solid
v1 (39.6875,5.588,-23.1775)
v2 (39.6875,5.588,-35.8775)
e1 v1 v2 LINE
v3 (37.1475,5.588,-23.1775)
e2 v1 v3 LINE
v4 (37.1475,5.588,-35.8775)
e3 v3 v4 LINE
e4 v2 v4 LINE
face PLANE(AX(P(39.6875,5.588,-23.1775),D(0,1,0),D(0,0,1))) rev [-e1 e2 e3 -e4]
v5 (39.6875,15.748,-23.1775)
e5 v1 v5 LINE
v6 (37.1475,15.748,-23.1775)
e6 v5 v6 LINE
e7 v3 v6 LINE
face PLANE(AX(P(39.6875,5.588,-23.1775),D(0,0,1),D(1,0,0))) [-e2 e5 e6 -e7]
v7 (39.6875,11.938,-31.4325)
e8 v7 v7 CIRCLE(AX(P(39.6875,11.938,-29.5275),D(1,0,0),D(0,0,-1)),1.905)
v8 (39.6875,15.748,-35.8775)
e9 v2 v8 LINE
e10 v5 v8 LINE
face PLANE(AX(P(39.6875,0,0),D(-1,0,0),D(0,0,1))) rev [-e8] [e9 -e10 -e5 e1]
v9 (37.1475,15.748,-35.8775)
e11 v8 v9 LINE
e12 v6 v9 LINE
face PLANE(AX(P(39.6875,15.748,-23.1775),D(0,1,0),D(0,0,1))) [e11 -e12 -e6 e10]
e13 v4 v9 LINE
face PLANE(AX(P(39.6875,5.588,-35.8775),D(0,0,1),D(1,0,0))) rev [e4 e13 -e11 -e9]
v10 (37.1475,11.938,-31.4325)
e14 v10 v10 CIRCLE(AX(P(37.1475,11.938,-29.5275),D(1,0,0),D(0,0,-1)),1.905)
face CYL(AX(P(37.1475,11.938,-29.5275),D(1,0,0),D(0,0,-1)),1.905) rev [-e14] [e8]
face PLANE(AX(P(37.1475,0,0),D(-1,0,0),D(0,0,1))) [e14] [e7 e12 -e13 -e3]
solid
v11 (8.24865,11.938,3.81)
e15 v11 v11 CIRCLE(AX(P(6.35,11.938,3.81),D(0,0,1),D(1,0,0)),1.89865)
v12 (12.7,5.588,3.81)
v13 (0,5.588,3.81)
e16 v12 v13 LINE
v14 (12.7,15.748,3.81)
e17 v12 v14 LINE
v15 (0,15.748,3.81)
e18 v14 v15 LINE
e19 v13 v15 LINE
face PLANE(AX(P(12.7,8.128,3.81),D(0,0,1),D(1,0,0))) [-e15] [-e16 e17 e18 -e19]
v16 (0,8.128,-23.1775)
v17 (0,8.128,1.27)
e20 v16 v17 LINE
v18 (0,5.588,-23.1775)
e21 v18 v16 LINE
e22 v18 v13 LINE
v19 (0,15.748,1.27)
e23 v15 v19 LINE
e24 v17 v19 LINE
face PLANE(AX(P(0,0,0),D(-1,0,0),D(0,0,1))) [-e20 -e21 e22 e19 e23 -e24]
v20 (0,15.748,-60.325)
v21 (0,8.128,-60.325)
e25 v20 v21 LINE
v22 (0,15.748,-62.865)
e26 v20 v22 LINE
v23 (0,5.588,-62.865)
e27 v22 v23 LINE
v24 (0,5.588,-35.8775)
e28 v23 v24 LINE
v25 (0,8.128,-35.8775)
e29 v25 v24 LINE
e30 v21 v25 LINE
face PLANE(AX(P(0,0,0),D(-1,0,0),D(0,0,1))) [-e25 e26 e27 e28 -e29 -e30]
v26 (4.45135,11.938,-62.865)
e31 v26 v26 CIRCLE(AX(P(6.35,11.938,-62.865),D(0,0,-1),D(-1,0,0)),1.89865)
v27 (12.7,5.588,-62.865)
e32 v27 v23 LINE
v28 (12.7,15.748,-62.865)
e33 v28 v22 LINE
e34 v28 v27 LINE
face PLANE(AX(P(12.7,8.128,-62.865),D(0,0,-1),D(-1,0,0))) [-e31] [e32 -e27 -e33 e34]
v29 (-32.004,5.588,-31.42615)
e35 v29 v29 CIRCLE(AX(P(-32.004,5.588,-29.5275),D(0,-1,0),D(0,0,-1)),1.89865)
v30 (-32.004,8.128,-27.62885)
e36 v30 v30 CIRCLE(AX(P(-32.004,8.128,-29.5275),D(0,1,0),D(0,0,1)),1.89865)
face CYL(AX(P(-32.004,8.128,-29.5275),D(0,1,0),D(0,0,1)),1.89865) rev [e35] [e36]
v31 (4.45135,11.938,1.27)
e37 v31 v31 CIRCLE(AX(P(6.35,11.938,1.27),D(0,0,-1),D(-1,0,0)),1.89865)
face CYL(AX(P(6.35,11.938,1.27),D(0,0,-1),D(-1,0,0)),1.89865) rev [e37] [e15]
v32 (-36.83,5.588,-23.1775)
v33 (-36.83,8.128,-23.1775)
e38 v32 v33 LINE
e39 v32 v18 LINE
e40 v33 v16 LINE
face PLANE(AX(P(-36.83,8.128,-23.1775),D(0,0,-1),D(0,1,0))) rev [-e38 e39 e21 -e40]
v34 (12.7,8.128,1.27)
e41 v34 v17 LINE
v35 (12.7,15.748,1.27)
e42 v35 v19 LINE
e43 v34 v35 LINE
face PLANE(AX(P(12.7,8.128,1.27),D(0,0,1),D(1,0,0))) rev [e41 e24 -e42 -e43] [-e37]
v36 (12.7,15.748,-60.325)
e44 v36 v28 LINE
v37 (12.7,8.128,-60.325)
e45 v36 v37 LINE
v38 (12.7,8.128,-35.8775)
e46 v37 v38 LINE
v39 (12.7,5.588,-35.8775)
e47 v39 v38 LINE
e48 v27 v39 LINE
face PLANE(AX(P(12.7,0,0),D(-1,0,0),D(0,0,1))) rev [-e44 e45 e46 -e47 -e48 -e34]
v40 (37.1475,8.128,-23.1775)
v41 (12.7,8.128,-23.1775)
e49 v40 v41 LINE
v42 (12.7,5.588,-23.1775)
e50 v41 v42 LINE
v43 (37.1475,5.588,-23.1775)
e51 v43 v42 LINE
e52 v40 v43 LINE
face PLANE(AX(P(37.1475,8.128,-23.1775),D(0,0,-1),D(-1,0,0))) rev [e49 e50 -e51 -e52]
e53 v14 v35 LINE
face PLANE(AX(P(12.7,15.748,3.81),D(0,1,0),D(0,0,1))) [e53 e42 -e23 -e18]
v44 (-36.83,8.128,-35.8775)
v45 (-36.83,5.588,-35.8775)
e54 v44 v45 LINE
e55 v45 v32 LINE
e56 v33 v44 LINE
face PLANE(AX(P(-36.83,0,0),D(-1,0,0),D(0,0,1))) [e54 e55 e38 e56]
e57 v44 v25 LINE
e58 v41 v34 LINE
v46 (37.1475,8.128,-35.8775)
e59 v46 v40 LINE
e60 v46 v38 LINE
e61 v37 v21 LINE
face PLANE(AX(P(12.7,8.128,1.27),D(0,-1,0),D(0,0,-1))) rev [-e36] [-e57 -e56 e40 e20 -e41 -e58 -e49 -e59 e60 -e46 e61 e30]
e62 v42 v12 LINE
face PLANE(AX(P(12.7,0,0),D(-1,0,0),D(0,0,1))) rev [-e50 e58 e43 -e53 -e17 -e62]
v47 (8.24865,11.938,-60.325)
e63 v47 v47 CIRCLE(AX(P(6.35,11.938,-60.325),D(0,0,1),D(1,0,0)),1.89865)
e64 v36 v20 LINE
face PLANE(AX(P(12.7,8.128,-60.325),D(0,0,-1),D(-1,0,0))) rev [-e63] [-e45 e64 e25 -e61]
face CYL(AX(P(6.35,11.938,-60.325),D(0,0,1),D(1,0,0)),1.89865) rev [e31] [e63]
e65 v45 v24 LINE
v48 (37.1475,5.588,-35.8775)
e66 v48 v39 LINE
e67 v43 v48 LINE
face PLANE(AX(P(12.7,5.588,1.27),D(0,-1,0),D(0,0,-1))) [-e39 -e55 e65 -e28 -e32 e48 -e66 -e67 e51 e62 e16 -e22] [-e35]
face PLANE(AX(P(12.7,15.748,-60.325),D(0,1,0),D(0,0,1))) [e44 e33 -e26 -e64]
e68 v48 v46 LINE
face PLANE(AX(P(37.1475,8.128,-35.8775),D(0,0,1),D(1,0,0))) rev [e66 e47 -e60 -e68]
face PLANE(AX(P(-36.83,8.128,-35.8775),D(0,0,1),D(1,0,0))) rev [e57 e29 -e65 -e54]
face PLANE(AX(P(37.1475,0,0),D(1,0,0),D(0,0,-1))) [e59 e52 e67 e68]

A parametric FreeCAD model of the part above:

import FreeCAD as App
import Part
import Sketcher

V = App.Vector
Q = App.Units.Quantity

doc = App.newDocument("Part")
params = doc.addObject("Spreadsheet::Sheet", "Params")
for row, (alias, value) in enumerate([
    ("sketch1_width", "0.3 in"),
    ("sketch1_width2", "0.4 in"),
    ("sketch1_height", "0.1 in"),
    ("sketch1_height2", "2.625 in"),
    ("pad1_length", "0.5 in"),
    ("hole_diameter", "0.1495 in"),
    ("hole_depth", "0.3 in"),
    ("hole2_diameter", "0.1495 in"),
    ("hole2_depth", "0.3 in"),
    ("sketch4_width", "0.1 in"),
    ("sketch4_height", "0.5 in"),
    ("pad2_length", "0.9625 in"),
    ("sketch5_width", "0.1 in"),
    ("sketch5_height", "0.5 in"),
    ("pad3_length", "1.45 in"),
    ("groove_angle", "360 deg"),
    ("sketch7_width", "0.4 in"),
    ("sketch7_height", "0.5 in"),
    ("pad4_length", "0.1 in"),
    ("sketch8_diameter", "0.15 in"),
    ("pocket1_length", "0.1 in"),
], start=1):
    params.set(f"A{row}", alias)
    params.set(f"B{row}", "=" + value)
    params.setAlias(f"B{row}", alias)

body = doc.addObject("PartDesign::Body", "Body")

# Sketch on YZ plane
sketch1 = body.newObject("Sketcher::SketchObject", "Sketch")
sketch1.AttachmentSupport = (doc.getObject("YZ_Plane"), [""])
sketch1.MapMode = "FlatFace"
sketch1.addGeometry(Part.LineSegment(V(8.1, 1.3, 0), V(15.7, 1.3, 0)), False)
sketch1.addGeometry(Part.LineSegment(V(15.7, 1.3, 0), V(15.7, 3.8, 0)), False)
sketch1.addGeometry(Part.LineSegment(V(15.7, 3.8, 0), V(5.6, 3.8, 0)), False)
sketch1.addGeometry(Part.LineSegment(V(5.6, 3.8, 0), V(5.6, -62.9, 0)), False)
sketch1.addGeometry(Part.LineSegment(V(5.6, -62.9, 0), V(15.7, -62.9, 0)), False)
sketch1.addGeometry(Part.LineSegment(V(15.7, -62.9, 0), V(15.7, -60.3, 0)), False)
sketch1.addGeometry(Part.LineSegment(V(15.7, -60.3, 0), V(8.1, -60.3, 0)), False)
sketch1.addGeometry(Part.LineSegment(V(8.1, -60.3, 0), V(8.1, 1.3, 0)), False)
sketch1.addConstraint(Sketcher.Constraint("Coincident", 0, 2, 1, 1))
sketch1.addConstraint(Sketcher.Constraint("Coincident", 1, 2, 2, 1))
sketch1.addConstraint(Sketcher.Constraint("Coincident", 2, 2, 3, 1))
sketch1.addConstraint(Sketcher.Constraint("Coincident", 3, 2, 4, 1))
sketch1.addConstraint(Sketcher.Constraint("Coincident", 4, 2, 5, 1))
sketch1.addConstraint(Sketcher.Constraint("Coincident", 5, 2, 6, 1))
sketch1.addConstraint(Sketcher.Constraint("Coincident", 6, 2, 7, 1))
sketch1.addConstraint(Sketcher.Constraint("Coincident", 7, 2, 0, 1))
sketch1.addConstraint(Sketcher.Constraint("Horizontal", 0))
sketch1.addConstraint(Sketcher.Constraint("Vertical", 1))
sketch1.addConstraint(Sketcher.Constraint("Horizontal", 2))
sketch1.addConstraint(Sketcher.Constraint("Vertical", 3))
sketch1.addConstraint(Sketcher.Constraint("Horizontal", 4))
sketch1.addConstraint(Sketcher.Constraint("Vertical", 5))
sketch1.addConstraint(Sketcher.Constraint("Horizontal", 6))
sketch1.addConstraint(Sketcher.Constraint("Vertical", 7))
sketch1.addConstraint(Sketcher.Constraint("Vertical", 1, 2, 4, 2))
sketch1.addConstraint(Sketcher.Constraint("Equal", 1, 5))
sketch1.addConstraint(Sketcher.Constraint("DistanceX", 0, 1, 0, 2, Q("0.3 in")))
sketch1.addConstraint(Sketcher.Constraint("DistanceX", 2, 2, 2, 1, Q("0.4 in")))
sketch1.addConstraint(Sketcher.Constraint("DistanceY", 1, 1, 1, 2, Q("0.1 in")))
sketch1.addConstraint(Sketcher.Constraint("DistanceY", 3, 2, 3, 1, Q("2.625 in")))
sketch1.addConstraint(Sketcher.Constraint("DistanceX", -1, 1, 0, 2, Q("0.62 in")))
sketch1.addConstraint(Sketcher.Constraint("DistanceY", -1, 1, 0, 2, Q("0.05 in")))
sketch1.setExpression("Constraints[18]", "Params.sketch1_width")
sketch1.setExpression("Constraints[19]", "Params.sketch1_width2")
sketch1.setExpression("Constraints[20]", "Params.sketch1_height")
sketch1.setExpression("Constraints[21]", "Params.sketch1_height2")
pad1 = body.newObject("PartDesign::Pad", "Pad")
pad1.Profile = sketch1
pad1.setExpression("Length", "Params.pad1_length")

# Sketch on XY plane
sketch2 = body.newObject("Sketcher::SketchObject", "Sketch001")
sketch2.AttachmentSupport = (doc.getObject("XY_Plane"), [""])
sketch2.MapMode = "FlatFace"
sketch2.AttachmentOffset = App.Placement(V(0, 0, 0.05 * 25.4), App.Rotation())
sketch2.addGeometry(Part.Circle(V(6.3, 11.9, 0), V(0, 0, 1), 1.9), False)
sketch2.addConstraint(Sketcher.Constraint("Diameter", 0, Q("0.1495 in")))
sketch2.addConstraint(Sketcher.Constraint("DistanceX", -1, 1, 0, 3, Q("0.25 in")))
sketch2.addConstraint(Sketcher.Constraint("DistanceY", -1, 1, 0, 3, Q("0.47 in")))
doc.recompute()
hole = body.newObject("PartDesign::Hole", "Hole")
hole.Profile = sketch2
hole.ThreadType = "None"
hole.setExpression("Diameter", "Params.hole_diameter")
hole.DepthType = "Dimension"
hole.setExpression("Depth", "Params.hole_depth")
hole.DrillPoint = "Angled"
hole.DrillPointAngle = 118
hole.Reversed = True

# Sketch on XY plane
sketch3 = body.newObject("Sketcher::SketchObject", "Sketch002")
sketch3.AttachmentSupport = (doc.getObject("XY_Plane"), [""])
sketch3.MapMode = "FlatFace"
sketch3.AttachmentOffset = App.Placement(V(0, 0, -2.375 * 25.4), App.Rotation())
sketch3.addGeometry(Part.Circle(V(6.3, 11.9, 0), V(0, 0, 1), 1.9), False)
sketch3.addConstraint(Sketcher.Constraint("Diameter", 0, Q("0.1495 in")))
sketch3.addConstraint(Sketcher.Constraint("DistanceX", -1, 1, 0, 3, Q("0.25 in")))
sketch3.addConstraint(Sketcher.Constraint("DistanceY", -1, 1, 0, 3, Q("0.47 in")))
doc.recompute()
hole2 = body.newObject("PartDesign::Hole", "Hole001")
hole2.Profile = sketch3
hole2.ThreadType = "None"
hole2.setExpression("Diameter", "Params.hole2_diameter")
hole2.DepthType = "Dimension"
hole2.setExpression("Depth", "Params.hole2_depth")
hole2.DrillPoint = "Angled"
hole2.DrillPointAngle = 118

# Sketch on YZ plane
sketch4 = body.newObject("Sketcher::SketchObject", "Sketch003")
sketch4.AttachmentSupport = (doc.getObject("YZ_Plane"), [""])
sketch4.MapMode = "FlatFace"
sketch4.AttachmentOffset = App.Placement(V(0, 0, 0.5 * 25.4), App.Rotation())
sketch4.addGeometry(Part.LineSegment(V(8.1, -23.2, 0), V(5.6, -23.2, 0)), False)
sketch4.addGeometry(Part.LineSegment(V(5.6, -23.2, 0), V(5.6, -35.9, 0)), False)
sketch4.addGeometry(Part.LineSegment(V(5.6, -35.9, 0), V(8.1, -35.9, 0)), False)
sketch4.addGeometry(Part.LineSegment(V(8.1, -35.9, 0), V(8.1, -23.2, 0)), False)
sketch4.addConstraint(Sketcher.Constraint("Coincident", 0, 2, 1, 1))
sketch4.addConstraint(Sketcher.Constraint("Coincident", 1, 2, 2, 1))
sketch4.addConstraint(Sketcher.Constraint("Coincident", 2, 2, 3, 1))
sketch4.addConstraint(Sketcher.Constraint("Coincident", 3, 2, 0, 1))
sketch4.addConstraint(Sketcher.Constraint("Horizontal", 0))
sketch4.addConstraint(Sketcher.Constraint("Vertical", 1))
sketch4.addConstraint(Sketcher.Constraint("Horizontal", 2))
sketch4.addConstraint(Sketcher.Constraint("Vertical", 3))
sketch4.addConstraint(Sketcher.Constraint("DistanceX", 0, 2, 0, 1, Q("0.1 in")))
sketch4.addConstraint(Sketcher.Constraint("DistanceY", 1, 2, 1, 1, Q("0.5 in")))
sketch4.addConstraint(Sketcher.Constraint("DistanceX", -1, 1, 0, 2, Q("0.22 in")))
sketch4.addConstraint(Sketcher.Constraint("DistanceY", 0, 2, -1, 1, Q("0.9125 in")))
sketch4.setExpression("Constraints[8]", "Params.sketch4_width")
sketch4.setExpression("Constraints[9]", "Params.sketch4_height")
pad2 = body.newObject("PartDesign::Pad", "Pad001")
pad2.Profile = sketch4
pad2.setExpression("Length", "Params.pad2_length")

# Sketch on YZ plane
sketch5 = body.newObject("Sketcher::SketchObject", "Sketch004")
sketch5.AttachmentSupport = (doc.getObject("YZ_Plane"), [""])
sketch5.MapMode = "FlatFace"
sketch5.addGeometry(Part.LineSegment(V(8.1, -35.9, 0), V(5.6, -35.9, 0)), False)
sketch5.addGeometry(Part.LineSegment(V(5.6, -35.9, 0), V(5.6, -23.2, 0)), False)
sketch5.addGeometry(Part.LineSegment(V(5.6, -23.2, 0), V(8.1, -23.2, 0)), False)
sketch5.addGeometry(Part.LineSegment(V(8.1, -23.2, 0), V(8.1, -35.9, 0)), False)
sketch5.addConstraint(Sketcher.Constraint("Coincident", 0, 2, 1, 1))
sketch5.addConstraint(Sketcher.Constraint("Coincident", 1, 2, 2, 1))
sketch5.addConstraint(Sketcher.Constraint("Coincident", 2, 2, 3, 1))
sketch5.addConstraint(Sketcher.Constraint("Coincident", 3, 2, 0, 1))
sketch5.addConstraint(Sketcher.Constraint("Horizontal", 0))
sketch5.addConstraint(Sketcher.Constraint("Vertical", 1))
sketch5.addConstraint(Sketcher.Constraint("Horizontal", 2))
sketch5.addConstraint(Sketcher.Constraint("Vertical", 3))
sketch5.addConstraint(Sketcher.Constraint("DistanceX", 0, 2, 0, 1, Q("0.1 in")))
sketch5.addConstraint(Sketcher.Constraint("DistanceY", 1, 1, 1, 2, Q("0.5 in")))
sketch5.addConstraint(Sketcher.Constraint("DistanceX", -1, 1, 0, 2, Q("0.22 in")))
sketch5.addConstraint(Sketcher.Constraint("DistanceY", 0, 2, -1, 1, Q("1.4125 in")))
sketch5.setExpression("Constraints[8]", "Params.sketch5_width")
sketch5.setExpression("Constraints[9]", "Params.sketch5_height")
pad3 = body.newObject("PartDesign::Pad", "Pad002")
pad3.Profile = sketch5
pad3.setExpression("Length", "Params.pad3_length")
pad3.Reversed = True

# Sketch on YZ plane
sketch6 = body.newObject("Sketcher::SketchObject", "Sketch005")
sketch6.AttachmentSupport = (doc.getObject("YZ_Plane"), [""])
sketch6.MapMode = "FlatFace"
sketch6.AttachmentOffset = App.Placement(V(0, 0, -1.26 * 25.4), App.Rotation())
sketch6.addGeometry(Part.LineSegment(V(5.6, -29.5, 0), V(8.1, -29.5, 0)), False)
sketch6.addGeometry(Part.LineSegment(V(8.1, -29.5, 0), V(8.1, -27.6, 0)), False)
sketch6.addGeometry(Part.LineSegment(V(8.1, -27.6, 0), V(5.6, -27.6, 0)), False)
sketch6.addGeometry(Part.LineSegment(V(5.6, -27.6, 0), V(5.6, -29.5, 0)), False)
sketch6.addGeometry(Part.LineSegment(V(8.1, -29.5, 0), V(5.6, -29.5, 0)), True)  # axis
sketch6.addConstraint(Sketcher.Constraint("Coincident", 0, 2, 1, 1))
sketch6.addConstraint(Sketcher.Constraint("Coincident", 1, 2, 2, 1))
sketch6.addConstraint(Sketcher.Constraint("Coincident", 2, 2, 3, 1))
sketch6.addConstraint(Sketcher.Constraint("Coincident", 3, 2, 0, 1))
sketch6.addConstraint(Sketcher.Constraint("Horizontal", 0))
sketch6.addConstraint(Sketcher.Constraint("Vertical", 1))
sketch6.addConstraint(Sketcher.Constraint("Horizontal", 2))
sketch6.addConstraint(Sketcher.Constraint("Vertical", 3))
sketch6.addConstraint(Sketcher.Constraint("Horizontal", 4))
sketch6.addConstraint(Sketcher.Constraint("Coincident", 4, 1, 0, 2))
sketch6.addConstraint(Sketcher.Constraint("Vertical", 2, 2, 4, 2))
sketch6.addConstraint(Sketcher.Constraint("DistanceX", -1, 1, 0, 2, Q("0.32 in")))
sketch6.addConstraint(Sketcher.Constraint("DistanceY", 0, 2, -1, 1, Q("1.1625 in")))
sketch6.addConstraint(Sketcher.Constraint("DistanceX", 0, 1, 0, 2, 2.54105))
sketch6.addConstraint(Sketcher.Constraint("DistanceY", 1, 1, 1, 2, 1.89865))
groove = body.newObject("PartDesign::Groove", "Groove")
groove.Profile = sketch6
groove.ReferenceAxis = (sketch6, ["Axis0"])
groove.setExpression("Angle", "Params.groove_angle")
body2 = doc.addObject("PartDesign::Body", "Body001")

# Sketch on YZ plane
sketch7 = body2.newObject("Sketcher::SketchObject", "Sketch006")
sketch7.AttachmentSupport = (doc.getObject("YZ_Plane001"), [""])
sketch7.MapMode = "FlatFace"
sketch7.AttachmentOffset = App.Placement(V(0, 0, 1.4625 * 25.4), App.Rotation())
sketch7.addGeometry(Part.LineSegment(V(16, -23, 0), V(6, -23, 0)), False)
sketch7.addGeometry(Part.LineSegment(V(6, -23, 0), V(6, -36, 0)), False)
sketch7.addGeometry(Part.LineSegment(V(6, -36, 0), V(16, -36, 0)), False)
sketch7.addGeometry(Part.LineSegment(V(16, -36, 0), V(16, -23, 0)), False)
sketch7.addConstraint(Sketcher.Constraint("Coincident", 0, 2, 1, 1))
sketch7.addConstraint(Sketcher.Constraint("Coincident", 1, 2, 2, 1))
sketch7.addConstraint(Sketcher.Constraint("Coincident", 2, 2, 3, 1))
sketch7.addConstraint(Sketcher.Constraint("Coincident", 3, 2, 0, 1))
sketch7.addConstraint(Sketcher.Constraint("Horizontal", 0))
sketch7.addConstraint(Sketcher.Constraint("Vertical", 1))
sketch7.addConstraint(Sketcher.Constraint("Horizontal", 2))
sketch7.addConstraint(Sketcher.Constraint("Vertical", 3))
sketch7.addConstraint(Sketcher.Constraint("DistanceX", 0, 2, 0, 1, Q("0.4 in")))
sketch7.addConstraint(Sketcher.Constraint("DistanceY", 1, 2, 1, 1, Q("0.5 in")))
sketch7.addConstraint(Sketcher.Constraint("DistanceX", -1, 1, 0, 2, Q("0.22 in")))
sketch7.addConstraint(Sketcher.Constraint("DistanceY", 0, 2, -1, 1, Q("0.9125 in")))
sketch7.setExpression("Constraints[8]", "Params.sketch7_width")
sketch7.setExpression("Constraints[9]", "Params.sketch7_height")
pad4 = body2.newObject("PartDesign::Pad", "Pad003")
pad4.Profile = sketch7
pad4.setExpression("Length", "Params.pad4_length")

# Sketch on YZ plane
sketch8 = body2.newObject("Sketcher::SketchObject", "Sketch007")
sketch8.AttachmentSupport = (doc.getObject("YZ_Plane001"), [""])
sketch8.MapMode = "FlatFace"
sketch8.AttachmentOffset = App.Placement(V(0, 0, 1.5625 * 25.4), App.Rotation())
sketch8.addGeometry(Part.Circle(V(11.9, -29.5, 0), V(0, 0, 1), 1.9), False)
sketch8.addConstraint(Sketcher.Constraint("Diameter", 0, Q("0.15 in")))
sketch8.addConstraint(Sketcher.Constraint("DistanceX", -1, 1, 0, 3, Q("0.47 in")))
sketch8.addConstraint(Sketcher.Constraint("DistanceY", 0, 3, -1, 1, Q("1.1625 in")))
sketch8.setExpression("Constraints[0]", "Params.sketch8_diameter")
pocket1 = body2.newObject("PartDesign::Pocket", "Pocket")
pocket1.Profile = sketch8
pocket1.setExpression("Length", "Params.pocket1_length")

doc.recompute()
